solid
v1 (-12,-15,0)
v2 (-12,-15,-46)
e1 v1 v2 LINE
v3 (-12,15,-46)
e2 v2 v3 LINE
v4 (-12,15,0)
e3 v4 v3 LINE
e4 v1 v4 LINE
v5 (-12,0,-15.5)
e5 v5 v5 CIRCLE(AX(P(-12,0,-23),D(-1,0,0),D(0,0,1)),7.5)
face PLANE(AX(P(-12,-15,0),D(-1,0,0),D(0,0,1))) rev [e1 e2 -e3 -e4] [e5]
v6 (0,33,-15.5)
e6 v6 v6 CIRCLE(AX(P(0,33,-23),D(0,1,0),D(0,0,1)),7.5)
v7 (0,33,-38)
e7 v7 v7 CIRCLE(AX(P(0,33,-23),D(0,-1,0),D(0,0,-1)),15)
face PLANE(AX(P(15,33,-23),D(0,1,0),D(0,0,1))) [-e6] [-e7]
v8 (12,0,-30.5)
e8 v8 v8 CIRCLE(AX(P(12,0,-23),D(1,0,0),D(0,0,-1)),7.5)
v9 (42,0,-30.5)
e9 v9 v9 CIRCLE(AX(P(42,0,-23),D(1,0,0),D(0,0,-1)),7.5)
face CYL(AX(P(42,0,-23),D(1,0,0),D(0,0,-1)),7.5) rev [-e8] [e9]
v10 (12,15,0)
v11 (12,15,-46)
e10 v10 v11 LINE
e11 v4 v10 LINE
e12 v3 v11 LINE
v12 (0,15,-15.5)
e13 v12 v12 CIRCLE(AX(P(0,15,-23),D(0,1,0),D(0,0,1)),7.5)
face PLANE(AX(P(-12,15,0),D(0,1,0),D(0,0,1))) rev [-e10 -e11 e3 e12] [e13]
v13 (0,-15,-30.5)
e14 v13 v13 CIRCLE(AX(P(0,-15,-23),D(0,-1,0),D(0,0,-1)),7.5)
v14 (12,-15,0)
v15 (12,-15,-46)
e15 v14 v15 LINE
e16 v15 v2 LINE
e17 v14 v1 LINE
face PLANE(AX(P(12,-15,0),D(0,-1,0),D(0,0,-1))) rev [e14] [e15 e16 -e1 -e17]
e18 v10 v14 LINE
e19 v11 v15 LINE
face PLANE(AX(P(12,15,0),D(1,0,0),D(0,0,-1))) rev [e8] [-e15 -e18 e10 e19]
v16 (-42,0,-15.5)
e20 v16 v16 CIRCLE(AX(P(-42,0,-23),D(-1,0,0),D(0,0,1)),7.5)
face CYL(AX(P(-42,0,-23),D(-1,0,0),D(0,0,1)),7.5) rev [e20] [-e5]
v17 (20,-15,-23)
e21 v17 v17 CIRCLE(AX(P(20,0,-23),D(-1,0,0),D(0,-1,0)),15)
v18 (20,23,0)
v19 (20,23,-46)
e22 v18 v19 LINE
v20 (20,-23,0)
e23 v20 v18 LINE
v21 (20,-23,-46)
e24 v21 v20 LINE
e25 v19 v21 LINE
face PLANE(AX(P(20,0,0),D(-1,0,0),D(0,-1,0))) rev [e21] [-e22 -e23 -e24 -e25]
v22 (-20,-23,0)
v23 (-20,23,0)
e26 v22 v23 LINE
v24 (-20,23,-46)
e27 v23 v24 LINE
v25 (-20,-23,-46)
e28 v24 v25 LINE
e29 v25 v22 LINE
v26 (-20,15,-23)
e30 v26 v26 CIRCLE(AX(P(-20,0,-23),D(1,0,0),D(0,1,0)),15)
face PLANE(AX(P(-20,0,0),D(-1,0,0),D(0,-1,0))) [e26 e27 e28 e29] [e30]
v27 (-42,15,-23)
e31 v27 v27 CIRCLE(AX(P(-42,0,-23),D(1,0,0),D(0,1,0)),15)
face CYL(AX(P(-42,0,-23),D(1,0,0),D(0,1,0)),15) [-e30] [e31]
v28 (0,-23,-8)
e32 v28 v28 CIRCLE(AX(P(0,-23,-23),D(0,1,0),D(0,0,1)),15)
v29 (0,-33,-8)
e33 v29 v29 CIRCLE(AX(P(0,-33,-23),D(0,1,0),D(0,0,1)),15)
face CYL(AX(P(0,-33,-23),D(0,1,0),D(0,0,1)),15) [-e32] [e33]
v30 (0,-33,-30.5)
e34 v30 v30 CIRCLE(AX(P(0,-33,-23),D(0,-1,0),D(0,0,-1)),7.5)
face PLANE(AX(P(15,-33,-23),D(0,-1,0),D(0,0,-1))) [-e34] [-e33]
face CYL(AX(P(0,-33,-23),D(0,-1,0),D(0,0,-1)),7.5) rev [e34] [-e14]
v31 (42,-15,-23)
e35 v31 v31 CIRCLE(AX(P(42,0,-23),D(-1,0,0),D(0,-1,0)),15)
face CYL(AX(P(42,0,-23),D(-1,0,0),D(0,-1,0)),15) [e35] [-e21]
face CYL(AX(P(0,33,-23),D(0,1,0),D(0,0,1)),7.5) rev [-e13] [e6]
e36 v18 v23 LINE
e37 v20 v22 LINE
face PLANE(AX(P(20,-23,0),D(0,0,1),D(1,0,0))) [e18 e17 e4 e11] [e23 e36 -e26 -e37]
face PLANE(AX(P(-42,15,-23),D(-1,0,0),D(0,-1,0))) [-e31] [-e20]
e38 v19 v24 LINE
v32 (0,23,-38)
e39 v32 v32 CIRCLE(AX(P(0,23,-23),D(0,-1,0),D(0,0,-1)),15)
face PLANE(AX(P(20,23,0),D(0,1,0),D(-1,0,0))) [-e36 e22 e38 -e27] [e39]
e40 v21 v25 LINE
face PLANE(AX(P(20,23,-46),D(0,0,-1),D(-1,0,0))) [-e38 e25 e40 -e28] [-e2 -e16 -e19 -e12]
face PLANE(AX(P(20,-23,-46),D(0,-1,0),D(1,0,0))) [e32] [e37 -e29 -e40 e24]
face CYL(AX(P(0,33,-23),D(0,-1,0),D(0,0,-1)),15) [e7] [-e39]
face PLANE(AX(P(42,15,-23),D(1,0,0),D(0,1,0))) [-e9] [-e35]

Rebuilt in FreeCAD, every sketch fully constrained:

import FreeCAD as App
import Part
import Sketcher


def add_polygon(sketch, points):
    """Adds a closed chain of lines whose ends are joined by coincident constraints."""
    first, n = sketch.GeometryCount, len(points)
    for a, b in zip(points, points[1:] + points[:1]):
        sketch.addGeometry(Part.LineSegment(App.Vector(*a, 0), App.Vector(*b, 0)), False)
    for i in range(n):
        sketch.addConstraint(Sketcher.Constraint("Coincident", first + i, 2, first + (i + 1) % n, 1))

doc = App.newDocument("Part")
body = doc.addObject("PartDesign::Body", "Body")

# Sketch on YZ plane
sketch1 = doc.addObject("Sketcher::SketchObject", "Sketch")
body.addObject(sketch1)
sketch1.AttachmentSupport = (doc.YZ_Plane, [""])
sketch1.MapMode = "FlatFace"
sketch1.AttachmentOffset = App.Placement(App.Vector(0, 0, -20), App.Rotation())
add_polygon(sketch1, [(23, 0), (23, -46), (-23, -46), (-23, 0)])  # lines 0-3
sketch1.addConstraint(Sketcher.Constraint("Vertical", 0))
sketch1.addConstraint(Sketcher.Constraint("Horizontal", 1))
sketch1.addConstraint(Sketcher.Constraint("Vertical", 2))
sketch1.addConstraint(Sketcher.Constraint("Horizontal", 3))
sketch1.addConstraint(Sketcher.Constraint("Symmetric", 2, 2, 3, 2, -1, 1))
sketch1.addConstraint(Sketcher.Constraint("Equal", 3, 0))
sketch1.addConstraint(Sketcher.Constraint("DistanceX", 1, 2, 1, 1, 46.0))
pad1 = doc.addObject("PartDesign::Pad", "Pad")
body.addObject(pad1)
pad1.Profile = sketch1
pad1.Length = 40

# Sketch on XY plane
sketch2 = doc.addObject("Sketcher::SketchObject", "Sketch001")
body.addObject(sketch2)
sketch2.AttachmentSupport = (doc.XY_Plane, [""])
sketch2.MapMode = "FlatFace"
sketch2.AttachmentOffset = App.Placement(App.Vector(0, 0, -46), App.Rotation())
add_polygon(sketch2, [(12, 15), (12, -15), (-12, -15), (-12, 15)])  # lines 0-3
sketch2.addConstraint(Sketcher.Constraint("Vertical", 0))
sketch2.addConstraint(Sketcher.Constraint("Horizontal", 1))
sketch2.addConstraint(Sketcher.Constraint("Vertical", 2))
sketch2.addConstraint(Sketcher.Constraint("Horizontal", 3))
sketch2.addConstraint(Sketcher.Constraint("Symmetric", 0, 2, 2, 2, -1, 1))
sketch2.addConstraint(Sketcher.Constraint("DistanceX", 1, 2, 1, 1, 24.0))
sketch2.addConstraint(Sketcher.Constraint("DistanceY", 0, 2, 0, 1, 30.0))
pocket1 = doc.addObject("PartDesign::Pocket", "Pocket")
body.addObject(pocket1)
pocket1.Profile = sketch2
pocket1.Type = "ThroughAll"
pocket1.Reversed = True

# Sketch on XY plane
sketch3 = doc.addObject("Sketcher::SketchObject", "Sketch002")
body.addObject(sketch3)
sketch3.AttachmentSupport = (doc.XY_Plane, [""])
sketch3.MapMode = "FlatFace"
sketch3.AttachmentOffset = App.Placement(App.Vector(0, 0, -23), App.Rotation())
add_polygon(sketch3, [(15, -23), (15, -33), (0, -33), (0, -23)])  # lines 0-3
sketch3.addConstraint(Sketcher.Constraint("Vertical", 0))
sketch3.addConstraint(Sketcher.Constraint("Horizontal", 1))
sketch3.addConstraint(Sketcher.Constraint("Vertical", 2))
sketch3.addConstraint(Sketcher.Constraint("Horizontal", 3))
sketch3.addConstraint(Sketcher.Constraint("PointOnObject", 1, 2, -2))
sketch3.addConstraint(Sketcher.Constraint("DistanceX", 1, 2, 1, 1, 15.0))
sketch3.addConstraint(Sketcher.Constraint("DistanceY", 0, 2, 0, 1, 10.0))
sketch3.addConstraint(Sketcher.Constraint("DistanceY", 0, 2, -1, 1, 33.0))
revolution = doc.addObject("PartDesign::Revolution", "Revolution")
body.addObject(revolution)
revolution.Profile = sketch3
revolution.ReferenceAxis = (sketch3, ["V_Axis"])
revolution.Angle = 360

# Sketch on XY plane
sketch4 = doc.addObject("Sketcher::SketchObject", "Sketch003")
body.addObject(sketch4)
sketch4.AttachmentSupport = (doc.XY_Plane, [""])
sketch4.MapMode = "FlatFace"
sketch4.AttachmentOffset = App.Placement(App.Vector(0, 0, -23), App.Rotation())
add_polygon(sketch4, [(0, 33), (0, 23), (15, 23), (15, 33)])  # lines 0-3
sketch4.addConstraint(Sketcher.Constraint("Vertical", 0))
sketch4.addConstraint(Sketcher.Constraint("Horizontal", 1))
sketch4.addConstraint(Sketcher.Constraint("Vertical", 2))
sketch4.addConstraint(Sketcher.Constraint("Horizontal", 3))
sketch4.addConstraint(Sketcher.Constraint("PointOnObject", 0, 2, -2))
sketch4.addConstraint(Sketcher.Constraint("DistanceX", 1, 1, 1, 2, 15.0))
sketch4.addConstraint(Sketcher.Constraint("DistanceY", 0, 2, 0, 1, 10.0))
sketch4.addConstraint(Sketcher.Constraint("DistanceY", -1, 1, 0, 2, 23.0))
revolution2 = doc.addObject("PartDesign::Revolution", "Revolution001")
body.addObject(revolution2)
revolution2.Profile = sketch4
revolution2.ReferenceAxis = (sketch4, ["V_Axis"])
revolution2.Angle = 360

# Sketch on XY plane
sketch5 = doc.addObject("Sketcher::SketchObject", "Sketch004")
body.addObject(sketch5)
sketch5.AttachmentSupport = (doc.XY_Plane, [""])
sketch5.MapMode = "FlatFace"
sketch5.AttachmentOffset = App.Placement(App.Vector(0, 0, -23), App.Rotation())
add_polygon(sketch5, [(-42, 15), (-42, 0), (-20, 0), (-20, 15)])  # lines 0-3
sketch5.addConstraint(Sketcher.Constraint("Vertical", 0))
sketch5.addConstraint(Sketcher.Constraint("Horizontal", 1))
sketch5.addConstraint(Sketcher.Constraint("Vertical", 2))
sketch5.addConstraint(Sketcher.Constraint("Horizontal", 3))
sketch5.addConstraint(Sketcher.Constraint("PointOnObject", 0, 2, -1))
sketch5.addConstraint(Sketcher.Constraint("DistanceX", 1, 1, 1, 2, 22.0))
sketch5.addConstraint(Sketcher.Constraint("DistanceY", 0, 2, 0, 1, 15.0))
sketch5.addConstraint(Sketcher.Constraint("DistanceX", 0, 2, -1, 1, 42.0))
revolution3 = doc.addObject("PartDesign::Revolution", "Revolution002")
body.addObject(revolution3)
revolution3.Profile = sketch5
revolution3.ReferenceAxis = (sketch5, ["H_Axis"])
revolution3.Angle = 360

# Sketch on XY plane
sketch6 = doc.addObject("Sketcher::SketchObject", "Sketch005")
body.addObject(sketch6)
sketch6.AttachmentSupport = (doc.XY_Plane, [""])
sketch6.MapMode = "FlatFace"
sketch6.AttachmentOffset = App.Placement(App.Vector(0, 0, -23), App.Rotation())
add_polygon(sketch6, [(42, 15), (42, 0), (20, 0), (20, 15)])  # lines 0-3
sketch6.addConstraint(Sketcher.Constraint("Vertical", 0))
sketch6.addConstraint(Sketcher.Constraint("Horizontal", 1))
sketch6.addConstraint(Sketcher.Constraint("Vertical", 2))
sketch6.addConstraint(Sketcher.Constraint("Horizontal", 3))
sketch6.addConstraint(Sketcher.Constraint("PointOnObject", 0, 2, -1))
sketch6.addConstraint(Sketcher.Constraint("DistanceX", 1, 2, 1, 1, 22.0))
sketch6.addConstraint(Sketcher.Constraint("DistanceY", 0, 2, 0, 1, 15.0))
sketch6.addConstraint(Sketcher.Constraint("DistanceX", -1, 1, 0, 2, 42.0))
revolution4 = doc.addObject("PartDesign::Revolution", "Revolution003")
body.addObject(revolution4)
revolution4.Profile = sketch6
revolution4.ReferenceAxis = (sketch6, ["H_Axis"])
revolution4.Angle = 360

# Sketch on XZ plane
sketch7 = doc.addObject("Sketcher::SketchObject", "Sketch006")
body.addObject(sketch7)
sketch7.AttachmentSupport = (doc.XZ_Plane, [""])
sketch7.MapMode = "FlatFace"
sketch7.AttachmentOffset = App.Placement(App.Vector(0, 0, 33), App.Rotation())
sketch7.addGeometry(Part.Circle(App.Vector(0, -23, 0), App.Vector(0, 0, 1), 8), False)
sketch7.addConstraint(Sketcher.Constraint("PointOnObject", 0, 3, -2))
sketch7.addConstraint(Sketcher.Constraint("Diameter", 0, 15.0))
sketch7.addConstraint(Sketcher.Constraint("DistanceY", 0, 3, -1, 1, 23.0))
doc.recompute()
hole = doc.addObject("PartDesign::Hole", "Hole")
body.addObject(hole)
hole.Profile = sketch7
hole.ThreadType = "None"
hole.Diameter = 15
hole.DepthType = "Dimension"
hole.Depth = 18
hole.DrillPoint = "Flat"

# Sketch on XZ plane
sketch8 = doc.addObject("Sketcher::SketchObject", "Sketch007")
body.addObject(sketch8)
sketch8.AttachmentSupport = (doc.XZ_Plane, [""])
sketch8.MapMode = "FlatFace"
sketch8.AttachmentOffset = App.Placement(App.Vector(0, 0, -33), App.Rotation())
sketch8.addGeometry(Part.Circle(App.Vector(0, -23, 0), App.Vector(0, 0, 1), 8), False)
sketch8.addConstraint(Sketcher.Constraint("PointOnObject", 0, 3, -2))
sketch8.addConstraint(Sketcher.Constraint("Diameter", 0, 15.0))
sketch8.addConstraint(Sketcher.Constraint("DistanceY", 0, 3, -1, 1, 23.0))
doc.recompute()
hole2 = doc.addObject("PartDesign::Hole", "Hole001")
body.addObject(hole2)
hole2.Profile = sketch8
hole2.ThreadType = "None"
hole2.Diameter = 15
hole2.DepthType = "Dimension"
hole2.Depth = 66
hole2.DrillPoint = "Flat"
hole2.Reversed = True

# Sketch on YZ plane
sketch9 = doc.addObject("Sketcher::SketchObject", "Sketch008")
body.addObject(sketch9)
sketch9.AttachmentSupport = (doc.YZ_Plane, [""])
sketch9.MapMode = "FlatFace"
sketch9.AttachmentOffset = App.Placement(App.Vector(0, 0, -42), App.Rotation())
sketch9.addGeometry(Part.Circle(App.Vector(0, -23, 0), App.Vector(0, 0, 1), 8), False)
sketch9.addConstraint(Sketcher.Constraint("PointOnObject", 0, 3, -2))
sketch9.addConstraint(Sketcher.Constraint("Diameter", 0, 15.0))
sketch9.addConstraint(Sketcher.Constraint("DistanceY", 0, 3, -1, 1, 23.0))
doc.recompute()
hole3 = doc.addObject("PartDesign::Hole", "Hole002")
body.addObject(hole3)
hole3.Profile = sketch9
hole3.ThreadType = "None"
hole3.Diameter = 15
hole3.DepthType = "Dimension"
hole3.Depth = 30
hole3.DrillPoint = "Flat"
hole3.Reversed = True

# Sketch on YZ plane
sketch10 = doc.addObject("Sketcher::SketchObject", "Sketch009")
body.addObject(sketch10)
sketch10.AttachmentSupport = (doc.YZ_Plane, [""])
sketch10.MapMode = "FlatFace"
sketch10.AttachmentOffset = App.Placement(App.Vector(0, 0, 42), App.Rotation())
sketch10.addGeometry(Part.Circle(App.Vector(0, -23, 0), App.Vector(0, 0, 1), 8), False)
sketch10.addConstraint(Sketcher.Constraint("PointOnObject", 0, 3, -2))
sketch10.addConstraint(Sketcher.Constraint("Diameter", 0, 15.0))
sketch10.addConstraint(Sketcher.Constraint("DistanceY", 0, 3, -1, 1, 23.0))
doc.recompute()
hole4 = doc.addObject("PartDesign::Hole", "Hole003")
body.addObject(hole4)
hole4.Profile = sketch10
hole4.ThreadType = "None"
hole4.Diameter = 15
hole4.DepthType = "Dimension"
hole4.Depth = 84
hole4.DrillPoint = "Flat"

doc.recompute()
